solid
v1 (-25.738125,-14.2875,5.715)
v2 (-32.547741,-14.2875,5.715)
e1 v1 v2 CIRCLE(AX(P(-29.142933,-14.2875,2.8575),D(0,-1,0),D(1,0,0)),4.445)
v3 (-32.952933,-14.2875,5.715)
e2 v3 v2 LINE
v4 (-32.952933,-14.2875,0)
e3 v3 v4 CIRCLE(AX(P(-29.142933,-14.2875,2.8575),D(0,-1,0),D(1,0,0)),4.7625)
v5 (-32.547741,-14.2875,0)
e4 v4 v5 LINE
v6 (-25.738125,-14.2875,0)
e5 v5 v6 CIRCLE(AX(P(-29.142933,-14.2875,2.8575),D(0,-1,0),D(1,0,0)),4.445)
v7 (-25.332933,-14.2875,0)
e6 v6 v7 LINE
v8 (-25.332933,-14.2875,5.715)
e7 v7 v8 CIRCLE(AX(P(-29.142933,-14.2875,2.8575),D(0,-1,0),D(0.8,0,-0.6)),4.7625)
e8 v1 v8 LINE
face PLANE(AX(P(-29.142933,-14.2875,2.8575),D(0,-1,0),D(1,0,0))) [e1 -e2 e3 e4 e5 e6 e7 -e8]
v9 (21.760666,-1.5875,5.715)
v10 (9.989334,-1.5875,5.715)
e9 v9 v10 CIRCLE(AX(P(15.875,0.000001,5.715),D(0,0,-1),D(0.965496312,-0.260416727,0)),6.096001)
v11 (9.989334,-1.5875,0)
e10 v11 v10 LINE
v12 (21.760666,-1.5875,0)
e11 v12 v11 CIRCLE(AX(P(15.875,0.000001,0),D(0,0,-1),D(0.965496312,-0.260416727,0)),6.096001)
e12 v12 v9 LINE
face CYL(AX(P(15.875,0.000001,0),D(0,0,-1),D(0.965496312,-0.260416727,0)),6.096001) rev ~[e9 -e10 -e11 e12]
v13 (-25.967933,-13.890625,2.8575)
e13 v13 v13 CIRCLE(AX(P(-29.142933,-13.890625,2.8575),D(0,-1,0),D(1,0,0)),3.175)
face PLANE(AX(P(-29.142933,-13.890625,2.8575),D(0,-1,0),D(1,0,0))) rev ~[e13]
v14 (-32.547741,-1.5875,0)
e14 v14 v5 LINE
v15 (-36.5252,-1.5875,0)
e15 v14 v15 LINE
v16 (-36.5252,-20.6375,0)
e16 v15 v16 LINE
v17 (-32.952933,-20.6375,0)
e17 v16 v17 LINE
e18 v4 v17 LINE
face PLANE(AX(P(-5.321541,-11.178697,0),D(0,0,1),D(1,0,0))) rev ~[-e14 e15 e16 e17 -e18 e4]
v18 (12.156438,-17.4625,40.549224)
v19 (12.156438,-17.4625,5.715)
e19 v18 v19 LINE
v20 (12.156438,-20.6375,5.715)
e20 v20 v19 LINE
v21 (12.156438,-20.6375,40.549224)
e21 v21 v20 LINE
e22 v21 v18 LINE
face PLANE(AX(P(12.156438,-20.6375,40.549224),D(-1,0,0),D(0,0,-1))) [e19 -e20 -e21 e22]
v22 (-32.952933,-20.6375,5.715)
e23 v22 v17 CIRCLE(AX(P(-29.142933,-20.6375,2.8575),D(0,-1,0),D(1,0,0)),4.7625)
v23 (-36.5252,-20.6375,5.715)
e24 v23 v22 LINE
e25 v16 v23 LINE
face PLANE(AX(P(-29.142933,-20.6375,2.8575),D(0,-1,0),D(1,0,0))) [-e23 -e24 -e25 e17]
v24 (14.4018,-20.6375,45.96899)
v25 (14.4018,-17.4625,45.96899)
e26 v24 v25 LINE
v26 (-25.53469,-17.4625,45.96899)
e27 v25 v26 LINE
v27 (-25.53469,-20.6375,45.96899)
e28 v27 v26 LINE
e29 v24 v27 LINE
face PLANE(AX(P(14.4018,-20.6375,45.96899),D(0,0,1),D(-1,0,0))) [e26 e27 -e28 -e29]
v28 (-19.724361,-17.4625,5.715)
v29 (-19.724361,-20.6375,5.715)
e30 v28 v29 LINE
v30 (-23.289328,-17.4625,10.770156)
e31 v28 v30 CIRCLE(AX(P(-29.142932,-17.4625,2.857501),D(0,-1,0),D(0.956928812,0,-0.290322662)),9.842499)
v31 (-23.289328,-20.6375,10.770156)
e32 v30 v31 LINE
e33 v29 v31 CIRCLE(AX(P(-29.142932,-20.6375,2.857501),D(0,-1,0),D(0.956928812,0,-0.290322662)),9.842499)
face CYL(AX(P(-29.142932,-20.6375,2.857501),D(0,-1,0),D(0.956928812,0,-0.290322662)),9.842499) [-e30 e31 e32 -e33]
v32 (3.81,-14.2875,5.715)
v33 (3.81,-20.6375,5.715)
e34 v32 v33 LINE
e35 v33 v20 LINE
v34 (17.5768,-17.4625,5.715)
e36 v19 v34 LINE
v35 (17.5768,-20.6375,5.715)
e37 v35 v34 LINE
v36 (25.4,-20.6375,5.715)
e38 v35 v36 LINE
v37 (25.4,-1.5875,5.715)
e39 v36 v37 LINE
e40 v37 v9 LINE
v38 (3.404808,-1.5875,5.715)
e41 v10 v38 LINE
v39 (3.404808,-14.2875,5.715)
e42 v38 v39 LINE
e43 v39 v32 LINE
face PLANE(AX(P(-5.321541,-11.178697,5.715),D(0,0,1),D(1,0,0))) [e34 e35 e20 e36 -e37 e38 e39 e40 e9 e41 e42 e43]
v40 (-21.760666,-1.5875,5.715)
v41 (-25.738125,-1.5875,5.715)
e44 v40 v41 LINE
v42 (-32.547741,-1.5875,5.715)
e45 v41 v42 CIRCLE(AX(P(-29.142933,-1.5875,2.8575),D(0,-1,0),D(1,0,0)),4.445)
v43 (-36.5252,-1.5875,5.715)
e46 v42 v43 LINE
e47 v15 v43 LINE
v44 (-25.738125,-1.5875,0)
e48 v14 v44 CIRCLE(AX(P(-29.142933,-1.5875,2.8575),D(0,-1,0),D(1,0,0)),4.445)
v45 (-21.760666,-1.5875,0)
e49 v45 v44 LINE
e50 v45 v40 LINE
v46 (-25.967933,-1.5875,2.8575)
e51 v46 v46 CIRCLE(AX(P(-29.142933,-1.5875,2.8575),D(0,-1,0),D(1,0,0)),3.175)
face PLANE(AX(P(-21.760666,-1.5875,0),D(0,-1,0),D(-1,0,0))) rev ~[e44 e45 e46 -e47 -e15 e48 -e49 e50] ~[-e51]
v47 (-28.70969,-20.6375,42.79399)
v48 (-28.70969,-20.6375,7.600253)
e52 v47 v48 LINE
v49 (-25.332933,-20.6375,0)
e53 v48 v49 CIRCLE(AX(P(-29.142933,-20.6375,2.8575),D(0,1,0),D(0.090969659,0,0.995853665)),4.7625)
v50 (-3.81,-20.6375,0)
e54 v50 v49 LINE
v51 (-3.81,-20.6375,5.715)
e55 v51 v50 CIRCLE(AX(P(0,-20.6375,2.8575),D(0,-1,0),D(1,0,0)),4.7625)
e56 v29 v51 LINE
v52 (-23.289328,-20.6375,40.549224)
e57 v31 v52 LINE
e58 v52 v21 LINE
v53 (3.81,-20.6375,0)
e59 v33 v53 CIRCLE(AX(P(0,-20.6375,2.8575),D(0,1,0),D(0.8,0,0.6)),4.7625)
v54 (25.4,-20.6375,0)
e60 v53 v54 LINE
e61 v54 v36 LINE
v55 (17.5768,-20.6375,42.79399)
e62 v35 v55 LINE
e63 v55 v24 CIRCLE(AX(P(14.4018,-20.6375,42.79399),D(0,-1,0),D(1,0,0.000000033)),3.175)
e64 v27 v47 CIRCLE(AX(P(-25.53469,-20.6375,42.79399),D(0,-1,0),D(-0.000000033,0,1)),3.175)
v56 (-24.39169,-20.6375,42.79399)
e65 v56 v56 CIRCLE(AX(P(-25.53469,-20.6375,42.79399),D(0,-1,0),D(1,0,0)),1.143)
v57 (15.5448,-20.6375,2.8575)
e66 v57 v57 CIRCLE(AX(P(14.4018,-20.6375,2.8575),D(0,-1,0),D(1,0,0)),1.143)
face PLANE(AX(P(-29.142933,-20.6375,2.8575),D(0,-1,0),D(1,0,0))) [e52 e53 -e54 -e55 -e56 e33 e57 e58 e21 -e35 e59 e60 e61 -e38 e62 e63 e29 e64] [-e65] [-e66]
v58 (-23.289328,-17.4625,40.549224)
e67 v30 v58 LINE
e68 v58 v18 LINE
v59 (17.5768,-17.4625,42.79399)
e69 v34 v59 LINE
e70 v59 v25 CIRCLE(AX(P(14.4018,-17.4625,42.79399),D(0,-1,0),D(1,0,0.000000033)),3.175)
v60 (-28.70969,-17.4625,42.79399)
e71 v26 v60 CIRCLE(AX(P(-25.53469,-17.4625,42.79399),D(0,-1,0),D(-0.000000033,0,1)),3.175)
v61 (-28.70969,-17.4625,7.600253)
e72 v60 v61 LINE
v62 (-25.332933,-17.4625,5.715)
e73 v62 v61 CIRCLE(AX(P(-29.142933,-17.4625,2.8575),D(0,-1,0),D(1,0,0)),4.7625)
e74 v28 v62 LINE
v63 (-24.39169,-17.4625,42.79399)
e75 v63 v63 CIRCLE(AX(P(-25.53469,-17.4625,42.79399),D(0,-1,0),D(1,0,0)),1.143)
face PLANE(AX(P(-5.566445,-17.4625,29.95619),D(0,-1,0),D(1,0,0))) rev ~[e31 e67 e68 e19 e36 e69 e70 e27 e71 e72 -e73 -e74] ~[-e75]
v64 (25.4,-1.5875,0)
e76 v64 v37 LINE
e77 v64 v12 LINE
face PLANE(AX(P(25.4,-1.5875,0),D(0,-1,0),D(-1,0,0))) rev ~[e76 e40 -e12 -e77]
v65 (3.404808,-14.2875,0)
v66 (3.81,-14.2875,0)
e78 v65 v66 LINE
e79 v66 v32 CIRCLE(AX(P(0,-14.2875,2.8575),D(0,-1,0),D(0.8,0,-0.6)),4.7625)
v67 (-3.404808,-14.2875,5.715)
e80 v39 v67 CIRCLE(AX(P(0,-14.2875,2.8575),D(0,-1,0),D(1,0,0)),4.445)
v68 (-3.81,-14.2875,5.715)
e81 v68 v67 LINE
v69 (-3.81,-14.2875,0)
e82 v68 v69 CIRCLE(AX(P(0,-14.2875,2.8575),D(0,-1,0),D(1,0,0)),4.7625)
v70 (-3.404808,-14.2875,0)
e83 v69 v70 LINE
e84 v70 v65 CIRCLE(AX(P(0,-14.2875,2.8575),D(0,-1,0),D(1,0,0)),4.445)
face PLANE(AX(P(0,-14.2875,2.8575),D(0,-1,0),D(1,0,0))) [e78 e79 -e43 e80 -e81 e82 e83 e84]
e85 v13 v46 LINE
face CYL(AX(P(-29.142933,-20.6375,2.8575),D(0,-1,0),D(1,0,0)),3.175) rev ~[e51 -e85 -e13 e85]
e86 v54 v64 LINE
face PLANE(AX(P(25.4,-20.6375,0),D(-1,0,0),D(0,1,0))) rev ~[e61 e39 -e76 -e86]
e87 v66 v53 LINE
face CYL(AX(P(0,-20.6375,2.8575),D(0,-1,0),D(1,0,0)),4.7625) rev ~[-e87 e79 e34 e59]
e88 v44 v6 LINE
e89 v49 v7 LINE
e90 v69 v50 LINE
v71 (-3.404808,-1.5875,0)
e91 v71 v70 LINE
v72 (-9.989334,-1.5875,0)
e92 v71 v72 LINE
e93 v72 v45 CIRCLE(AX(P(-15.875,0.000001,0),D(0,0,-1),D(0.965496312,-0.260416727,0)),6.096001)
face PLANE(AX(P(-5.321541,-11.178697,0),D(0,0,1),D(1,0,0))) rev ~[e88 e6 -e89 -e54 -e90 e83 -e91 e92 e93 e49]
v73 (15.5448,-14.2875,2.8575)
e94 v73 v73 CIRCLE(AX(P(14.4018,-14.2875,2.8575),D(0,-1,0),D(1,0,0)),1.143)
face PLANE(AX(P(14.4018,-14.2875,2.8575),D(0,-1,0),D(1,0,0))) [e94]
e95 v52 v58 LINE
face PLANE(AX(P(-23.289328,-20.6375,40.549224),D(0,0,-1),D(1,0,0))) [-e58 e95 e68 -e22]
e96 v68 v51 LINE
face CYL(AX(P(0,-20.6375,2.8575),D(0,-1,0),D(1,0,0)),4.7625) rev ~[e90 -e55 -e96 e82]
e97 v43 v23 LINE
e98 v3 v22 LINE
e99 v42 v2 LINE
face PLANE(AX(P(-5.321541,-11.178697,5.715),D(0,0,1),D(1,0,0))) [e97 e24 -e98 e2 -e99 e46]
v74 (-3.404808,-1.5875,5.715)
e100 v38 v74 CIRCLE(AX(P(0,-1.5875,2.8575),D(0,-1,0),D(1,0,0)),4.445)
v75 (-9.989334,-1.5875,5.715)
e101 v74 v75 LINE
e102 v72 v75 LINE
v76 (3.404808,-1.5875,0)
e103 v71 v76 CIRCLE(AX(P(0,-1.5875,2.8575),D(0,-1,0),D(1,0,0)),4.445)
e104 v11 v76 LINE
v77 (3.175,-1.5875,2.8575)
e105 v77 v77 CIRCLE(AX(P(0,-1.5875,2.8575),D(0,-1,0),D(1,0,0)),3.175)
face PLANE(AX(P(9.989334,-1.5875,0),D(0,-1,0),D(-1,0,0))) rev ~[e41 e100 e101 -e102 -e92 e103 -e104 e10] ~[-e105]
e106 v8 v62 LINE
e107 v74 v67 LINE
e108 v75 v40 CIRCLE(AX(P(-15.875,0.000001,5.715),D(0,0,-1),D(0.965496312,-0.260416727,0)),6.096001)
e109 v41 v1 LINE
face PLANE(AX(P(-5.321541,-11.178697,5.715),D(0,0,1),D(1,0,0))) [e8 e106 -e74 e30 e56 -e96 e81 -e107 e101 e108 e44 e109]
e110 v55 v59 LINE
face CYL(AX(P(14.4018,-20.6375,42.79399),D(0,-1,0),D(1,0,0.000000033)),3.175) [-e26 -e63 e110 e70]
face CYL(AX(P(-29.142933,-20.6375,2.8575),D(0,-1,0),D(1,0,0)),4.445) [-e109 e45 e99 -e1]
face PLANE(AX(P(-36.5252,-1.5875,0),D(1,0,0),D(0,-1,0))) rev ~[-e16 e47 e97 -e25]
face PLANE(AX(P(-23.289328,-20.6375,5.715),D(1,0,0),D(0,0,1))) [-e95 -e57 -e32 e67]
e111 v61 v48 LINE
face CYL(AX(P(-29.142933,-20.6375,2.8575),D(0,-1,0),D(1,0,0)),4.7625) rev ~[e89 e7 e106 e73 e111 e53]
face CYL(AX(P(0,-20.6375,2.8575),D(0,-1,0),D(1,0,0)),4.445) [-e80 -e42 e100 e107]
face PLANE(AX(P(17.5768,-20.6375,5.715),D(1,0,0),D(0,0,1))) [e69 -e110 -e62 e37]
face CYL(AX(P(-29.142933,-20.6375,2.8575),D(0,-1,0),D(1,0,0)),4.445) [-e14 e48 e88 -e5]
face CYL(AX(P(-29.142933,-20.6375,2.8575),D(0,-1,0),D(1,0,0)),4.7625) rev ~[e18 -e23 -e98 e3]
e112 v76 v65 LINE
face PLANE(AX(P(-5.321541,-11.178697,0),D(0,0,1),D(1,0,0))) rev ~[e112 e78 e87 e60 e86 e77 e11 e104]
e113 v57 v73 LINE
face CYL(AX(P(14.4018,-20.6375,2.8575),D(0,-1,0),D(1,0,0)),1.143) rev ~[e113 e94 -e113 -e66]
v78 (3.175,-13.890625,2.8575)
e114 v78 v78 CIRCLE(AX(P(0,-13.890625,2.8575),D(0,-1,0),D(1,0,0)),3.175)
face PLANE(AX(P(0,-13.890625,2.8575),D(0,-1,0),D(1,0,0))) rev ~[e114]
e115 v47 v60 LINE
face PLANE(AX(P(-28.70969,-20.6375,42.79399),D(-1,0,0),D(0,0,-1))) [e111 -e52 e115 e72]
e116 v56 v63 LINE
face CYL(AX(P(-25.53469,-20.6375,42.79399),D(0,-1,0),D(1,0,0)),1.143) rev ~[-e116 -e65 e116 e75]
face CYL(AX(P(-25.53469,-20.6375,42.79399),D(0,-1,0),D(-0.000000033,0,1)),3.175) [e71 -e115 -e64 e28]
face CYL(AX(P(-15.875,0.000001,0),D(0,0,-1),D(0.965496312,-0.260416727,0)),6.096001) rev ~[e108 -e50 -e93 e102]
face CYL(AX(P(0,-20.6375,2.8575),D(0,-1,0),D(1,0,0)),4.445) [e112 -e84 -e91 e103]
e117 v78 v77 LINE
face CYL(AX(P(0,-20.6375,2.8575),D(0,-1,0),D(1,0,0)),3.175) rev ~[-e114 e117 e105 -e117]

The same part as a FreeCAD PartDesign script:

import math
import FreeCAD as App
import Part
import Sketcher
from FreeCAD import Vector
Q = App.Units.Quantity

doc = App.newDocument("Part")
body = doc.addObject("PartDesign::Body", "Body")

sketch1 = doc.addObject("Sketcher::SketchObject", "Sketch")
body.addObject(sketch1)
sketch1.AttachmentSupport = (doc.XY_Plane, [""])
sketch1.MapMode = "FlatFace"
sketch1.addGeometry([
    Part.ArcOfCircle(Part.Circle(Vector(-15.9, 0, 0), Vector(0, 0, 1), 6.1), math.radians(-165), math.radians(-15)),
    Part.LineSegment(Vector(-21.8, -1.6, 0), Vector(-36.5, -1.6, 0)),
    Part.LineSegment(Vector(-36.5, -1.6, 0), Vector(-36.5, -20.6, 0)),
    Part.LineSegment(Vector(-36.5, -20.6, 0), Vector(25.4, -20.6, 0)),
    Part.LineSegment(Vector(25.4, -20.6, 0), Vector(25.4, -1.6, 0)),
    Part.LineSegment(Vector(25.4, -1.6, 0), Vector(21.8, -1.6, 0)),
    Part.ArcOfCircle(Part.Circle(Vector(15.9, 0, 0), Vector(0, 0, 1), 6.1), math.radians(-165), math.radians(-15)),
    Part.LineSegment(Vector(10, -1.6, 0), Vector(-10, -1.6, 0)),
], False)
sketch1.addConstraint([
    Sketcher.Constraint("Coincident", 0, 1, 1, 1),
    Sketcher.Constraint("Coincident", 1, 2, 2, 1),
    Sketcher.Constraint("Coincident", 2, 2, 3, 1),
    Sketcher.Constraint("Coincident", 3, 2, 4, 1),
    Sketcher.Constraint("Coincident", 4, 2, 5, 1),
    Sketcher.Constraint("Coincident", 5, 2, 6, 2),
    Sketcher.Constraint("Coincident", 6, 1, 7, 1),
    Sketcher.Constraint("Coincident", 7, 2, 0, 2),
    Sketcher.Constraint("Horizontal", 1),
    Sketcher.Constraint("Vertical", 2),
    Sketcher.Constraint("Horizontal", 3),
    Sketcher.Constraint("Vertical", 4),
    Sketcher.Constraint("Horizontal", 5),
    Sketcher.Constraint("Horizontal", 7),
    Sketcher.Constraint("Equal", 0, 6),
    Sketcher.Constraint("Symmetric", 0, 3, 6, 3, -1, 1),
    Sketcher.Constraint("Symmetric", 0, 1, 5, 2, -2),
    Sketcher.Constraint("Horizontal", 5, 2, 6, 1),
    Sketcher.Constraint("Radius", 0, Q("0.24 in")),
    Sketcher.Constraint("DistanceX", -1, 1, 3, 2, Q("1 in")),
    Sketcher.Constraint("DistanceY", 2, 2, 2, 1, Q("0.75 in")),
    Sketcher.Constraint("DistanceX", 3, 1, 3, 2, Q("2.438 in")),
    Sketcher.Constraint("DistanceX", 0, 3, 6, 3, Q("1.25 in")),
    Sketcher.Constraint("DistanceY", 0, 1, -1, 1, Q("0.0625 in")),
])
pad1 = doc.addObject("PartDesign::Pad", "Pad")
body.addObject(pad1)
pad1.Profile = sketch1
pad1.Length = Q("0.225 in")

sketch2 = doc.addObject("Sketcher::SketchObject", "Sketch001")
body.addObject(sketch2)
sketch2.AttachmentSupport = (doc.XZ_Plane, [""])
sketch2.MapMode = "FlatFace"
sketch2.AttachmentOffset = App.Placement(Vector(0, 0, 0.8125 * 25.4), App.Rotation())
sketch2.addGeometry([
    Part.ArcOfCircle(Part.Circle(Vector(-25.5, 42.8, 0), Vector(0, 0, 1), 3.2), math.radians(90), math.radians(180)),
    Part.LineSegment(Vector(-28.7, 42.8, 0), Vector(-28.7, 5.7, 0)),
    Part.LineSegment(Vector(-28.7, 5.7, 0), Vector(-23.3, 5.7, 0)),
    Part.LineSegment(Vector(-23.3, 5.7, 0), Vector(-23.3, 40.5, 0)),
    Part.LineSegment(Vector(-23.3, 40.5, 0), Vector(12.2, 40.5, 0)),
    Part.LineSegment(Vector(12.2, 40.5, 0), Vector(12.2, 5.7, 0)),
    Part.LineSegment(Vector(12.2, 5.7, 0), Vector(17.6, 5.7, 0)),
    Part.LineSegment(Vector(17.6, 5.7, 0), Vector(17.6, 42.8, 0)),
    Part.ArcOfCircle(Part.Circle(Vector(14.4, 42.8, 0), Vector(0, 0, 1), 3.2), math.radians(0), math.radians(90)),
    Part.LineSegment(Vector(14.4, 46, 0), Vector(-25.5, 46, 0)),
    Part.Circle(Vector(-25.5, 42.8, 0), Vector(0, 0, 1), 1.1),
    Part.Circle(Vector(14.4, 2.9, 0), Vector(0, 0, 1), 1.1),
], False)
sketch2.addConstraint([
    Sketcher.Constraint("Tangent", 0, 2, 1, 1),
    Sketcher.Constraint("Coincident", 1, 2, 2, 1),
    Sketcher.Constraint("Coincident", 2, 2, 3, 1),
    Sketcher.Constraint("Coincident", 3, 2, 4, 1),
    Sketcher.Constraint("Coincident", 4, 2, 5, 1),
    Sketcher.Constraint("Coincident", 5, 2, 6, 1),
    Sketcher.Constraint("Coincident", 6, 2, 7, 1),
    Sketcher.Constraint("Tangent", 7, 2, 8, 1),
    Sketcher.Constraint("Tangent", 8, 2, 9, 1),
    Sketcher.Constraint("Tangent", 9, 2, 0, 1),
    Sketcher.Constraint("Vertical", 1),
    Sketcher.Constraint("Horizontal", 2),
    Sketcher.Constraint("Vertical", 3),
    Sketcher.Constraint("Horizontal", 4),
    Sketcher.Constraint("Vertical", 5),
    Sketcher.Constraint("Horizontal", 6),
    Sketcher.Constraint("Vertical", 7),
    Sketcher.Constraint("Horizontal", 9),
    Sketcher.Constraint("Coincident", 10, 3, 0, 3),
    Sketcher.Constraint("Equal", 0, 8),
    Sketcher.Constraint("Equal", 10, 11),
    Sketcher.Constraint("Horizontal", 2, 2, 5, 2),
    Sketcher.Constraint("Vertical", 8, 3, 11, 3),
    Sketcher.Constraint("Equal", 2, 6),
    Sketcher.Constraint("Diameter", 10, Q("0.09 in")),
    Sketcher.Constraint("Radius", 0, Q("0.125 in")),
    Sketcher.Constraint("DistanceX", 2, 1, 2, 2, Q("0.2134001 in")),
    Sketcher.Constraint("DistanceX", -1, 1, 8, 3, Q("0.567 in")),
    Sketcher.Constraint("DistanceY", -1, 1, 1, 2, Q("0.225 in")),
    Sketcher.Constraint("DistanceY", -1, 1, 11, 3, Q("0.1125 in")),
    Sketcher.Constraint("DistanceX", 9, 2, 9, 1, 39.93649),
    Sketcher.Constraint("DistanceY", 1, 2, 1, 1, 37.07899),
    Sketcher.Constraint("DistanceY", 3, 1, 3, 2, 34.834224),
])
pad2 = doc.addObject("PartDesign::Pad", "Pad001")
body.addObject(pad2)
pad2.Profile = sketch2
pad2.Length = Q("0.125 in")
pad2.Reversed = True

sketch3 = doc.addObject("Sketcher::SketchObject", "Sketch002")
body.addObject(sketch3)
sketch3.AttachmentSupport = (doc.XZ_Plane, [""])
sketch3.MapMode = "FlatFace"
sketch3.AttachmentOffset = App.Placement(Vector(0, 0, 0.8125 * 25.4), App.Rotation())
sketch3.addGeometry([
    Part.Circle(Vector(-29.1, 2.9, 0), Vector(0, 0, 1), 4.4),
    Part.Circle(Vector(0, 2.9, 0), Vector(0, 0, 1), 4.4),
], False)
sketch3.addConstraint([
    Sketcher.Constraint("Equal", 0, 1),
    Sketcher.Constraint("PointOnObject", 1, 3, -2),
    Sketcher.Constraint("Horizontal", 0, 3, 1, 3),
    Sketcher.Constraint("Diameter", 0, Q("0.35 in")),
    Sketcher.Constraint("DistanceY", -1, 1, 0, 3, Q("0.1125 in")),
    Sketcher.Constraint("DistanceX", 0, 3, -1, 1, 29.142933),
])
pad3 = doc.addObject("PartDesign::Pad", "Pad002")
body.addObject(pad3)
pad3.Profile = sketch3
pad3.Length = Q("0.75 in")
pad3.Reversed = True

sketch4 = doc.addObject("Sketcher::SketchObject", "Sketch003")
body.addObject(sketch4)
sketch4.AttachmentSupport = (doc.XZ_Plane, [""])
sketch4.MapMode = "FlatFace"
sketch4.AttachmentOffset = App.Placement(Vector(0, 0, 0.8125 * 25.4), App.Rotation())
sketch4.addGeometry([
    Part.Circle(Vector(-29.1, 2.9, 0), Vector(0, 0, 1), 3.2),
    Part.Circle(Vector(0, 2.9, 0), Vector(0, 0, 1), 3.2),
], False)
sketch4.addConstraint([
    Sketcher.Constraint("Equal", 0, 1),
    Sketcher.Constraint("PointOnObject", 1, 3, -2),
    Sketcher.Constraint("Horizontal", 0, 3, 1, 3),
    Sketcher.Constraint("Diameter", 0, Q("0.25 in")),
    Sketcher.Constraint("DistanceY", -1, 1, 0, 3, Q("0.1125 in")),
    Sketcher.Constraint("DistanceX", 0, 3, -1, 1, 29.142933),
])
pocket1 = doc.addObject("PartDesign::Pocket", "Pocket")
body.addObject(pocket1)
pocket1.Profile = sketch4
pocket1.Type = "ThroughAll"

sketch5 = doc.addObject("Sketcher::SketchObject", "Sketch004")
body.addObject(sketch5)
sketch5.AttachmentSupport = (doc.XZ_Plane, [""])
sketch5.MapMode = "FlatFace"
sketch5.AttachmentOffset = App.Placement(Vector(0, 0, 0.8125 * 25.4), App.Rotation())
sketch5.addGeometry([
    Part.Circle(Vector(-29.1, 2.9, 0), Vector(0, 0, 1), 4.8),
    Part.Circle(Vector(0, 2.9, 0), Vector(0, 0, 1), 4.8),
], False)
sketch5.addConstraint([
    Sketcher.Constraint("Equal", 0, 1),
    Sketcher.Constraint("PointOnObject", 1, 3, -2),
    Sketcher.Constraint("Horizontal", 0, 3, 1, 3),
    Sketcher.Constraint("Diameter", 0, Q("0.375 in")),
    Sketcher.Constraint("DistanceY", -1, 1, 0, 3, Q("0.1125 in")),
    Sketcher.Constraint("DistanceX", 0, 3, -1, 1, 29.142933),
])
pocket2 = doc.addObject("PartDesign::Pocket", "Pocket001")
body.addObject(pocket2)
pocket2.Profile = sketch5
pocket2.Length = Q("0.25 in")

sketch6 = doc.addObject("Sketcher::SketchObject", "Sketch005")
body.addObject(sketch6)
sketch6.AttachmentSupport = (doc.XZ_Plane, [""])
sketch6.MapMode = "FlatFace"
sketch6.AttachmentOffset = App.Placement(Vector(0, 0, 0.8125 * 25.4), App.Rotation())
sketch6.addGeometry(Part.Circle(Vector(14.4, 2.9, 0), Vector(0, 0, 1), 1.1), False)
sketch6.addConstraint([
    Sketcher.Constraint("Diameter", 0, Q("0.09 in")),
    Sketcher.Constraint("DistanceX", -1, 1, 0, 3, Q("0.567 in")),
    Sketcher.Constraint("DistanceY", -1, 1, 0, 3, Q("0.1125 in")),
])
pocket3 = doc.addObject("PartDesign::Pocket", "Pocket002")
body.addObject(pocket3)
pocket3.Profile = sketch6
pocket3.Length = Q("0.25 in")

sketch7 = doc.addObject("Sketcher::SketchObject", "Sketch006")
body.addObject(sketch7)
sketch7.AttachmentSupport = (doc.XZ_Plane, [""])
sketch7.MapMode = "FlatFace"
sketch7.AttachmentOffset = App.Placement(Vector(0, 0, 0.8125 * 25.4), App.Rotation())
sketch7.addGeometry([
    Part.LineSegment(Vector(-25.3, 0, 0), Vector(-19.7, 0, 0)),
    Part.ArcOfCircle(Part.Circle(Vector(-29.1, 2.9, 0), Vector(0, 0, 1), 9.8), math.radians(-17), math.radians(87)),
    Part.LineSegment(Vector(-28.7, 12.7, 0), Vector(-28.7, 7.6, 0)),
    Part.ArcOfCircle(Part.Circle(Vector(-29.1, 2.9, 0), Vector(0, 0, 1), 4.8), math.radians(-37), math.radians(85)),
], False)
sketch7.addConstraint([
    Sketcher.Constraint("Coincident", 0, 2, 1, 1),
    Sketcher.Constraint("Coincident", 1, 2, 2, 1),
    Sketcher.Constraint("Coincident", 2, 2, 3, 2),
    Sketcher.Constraint("Coincident", 3, 1, 0, 1),
    Sketcher.Constraint("Horizontal", 0),
    Sketcher.Constraint("Vertical", 2),
    Sketcher.Constraint("Coincident", 3, 3, 1, 3),
    Sketcher.Constraint("PointOnObject", 0, 2, -1),
    Sketcher.Constraint("Radius", 3, Q("0.1875 in")),
    Sketcher.Constraint("Radius", 1, Q("0.3875 in")),
    Sketcher.Constraint("DistanceX", 3, 3, 3, 1, Q("0.15 in")),
    Sketcher.Constraint("DistanceY", 2, 2, 2, 1, 5.090207),
    Sketcher.Constraint("DistanceX", 0, 2, -1, 1, 19.724361),
])
pad4 = doc.addObject("PartDesign::Pad", "Pad003")
body.addObject(pad4)
pad4.Profile = sketch7
pad4.Type = "UpToLast"
pad4.Reversed = True

sketch8 = doc.addObject("Sketcher::SketchObject", "Sketch007")
body.addObject(sketch8)
sketch8.AttachmentSupport = (doc.XZ_Plane, [""])
sketch8.MapMode = "FlatFace"
sketch8.AttachmentOffset = App.Placement(Vector(0, 0, 0.5625 * 25.4), App.Rotation())
sketch8.addGeometry([
    Part.Circle(Vector(0, 2.9, 0), Vector(0, 0, 1), 3.2),
    Part.Circle(Vector(-29.1, 2.9, 0), Vector(0, 0, 1), 3.2),
], False)
sketch8.addConstraint([
    Sketcher.Constraint("Equal", 0, 1),
    Sketcher.Constraint("PointOnObject", 0, 3, -2),
    Sketcher.Constraint("Horizontal", 0, 3, 1, 3),
    Sketcher.Constraint("Diameter", 0, Q("0.25 in")),
    Sketcher.Constraint("DistanceY", -1, 1, 0, 3, Q("0.1125 in")),
    Sketcher.Constraint("DistanceX", 1, 3, -1, 1, 29.142933),
])
pad5 = doc.addObject("PartDesign::Pad", "Pad004")
body.addObject(pad5)
pad5.Profile = sketch8
pad5.Length = Q("0.015625 in")
pad5.Reversed = True

doc.recompute()
